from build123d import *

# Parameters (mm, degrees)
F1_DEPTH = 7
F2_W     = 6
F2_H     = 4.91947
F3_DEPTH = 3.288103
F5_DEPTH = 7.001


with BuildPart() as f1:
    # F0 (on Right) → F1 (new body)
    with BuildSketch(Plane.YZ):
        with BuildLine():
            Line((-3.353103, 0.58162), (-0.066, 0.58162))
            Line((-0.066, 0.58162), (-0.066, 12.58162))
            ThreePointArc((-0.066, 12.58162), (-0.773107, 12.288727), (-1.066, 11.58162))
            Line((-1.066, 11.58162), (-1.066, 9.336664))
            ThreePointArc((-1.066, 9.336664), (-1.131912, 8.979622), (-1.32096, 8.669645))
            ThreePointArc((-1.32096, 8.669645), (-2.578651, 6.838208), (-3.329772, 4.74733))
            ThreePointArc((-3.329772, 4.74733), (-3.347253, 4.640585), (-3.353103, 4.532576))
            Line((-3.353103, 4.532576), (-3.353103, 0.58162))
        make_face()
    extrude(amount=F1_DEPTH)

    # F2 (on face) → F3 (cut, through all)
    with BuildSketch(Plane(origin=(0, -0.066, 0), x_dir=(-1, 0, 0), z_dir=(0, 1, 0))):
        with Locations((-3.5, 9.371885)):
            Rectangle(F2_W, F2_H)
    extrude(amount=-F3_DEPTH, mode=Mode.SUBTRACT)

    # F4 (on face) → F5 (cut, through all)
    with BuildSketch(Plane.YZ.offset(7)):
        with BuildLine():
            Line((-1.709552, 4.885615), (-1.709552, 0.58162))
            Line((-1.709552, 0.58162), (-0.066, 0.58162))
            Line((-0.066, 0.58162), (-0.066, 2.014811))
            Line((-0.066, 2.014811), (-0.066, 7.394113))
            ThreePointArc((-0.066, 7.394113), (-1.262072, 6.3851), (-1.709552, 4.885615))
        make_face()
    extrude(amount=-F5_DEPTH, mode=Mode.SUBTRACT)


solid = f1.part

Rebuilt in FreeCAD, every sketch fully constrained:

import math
import FreeCAD as App
import Part
import Sketcher

V = App.Vector
Q = App.Units.Quantity


def add_polygon(sketch, points):
    """Adds a closed chain of lines whose ends are joined by coincident constraints."""
    first, n = sketch.GeometryCount, len(points)
    for a, b in zip(points, points[1:] + points[:1]):
        sketch.addGeometry(Part.LineSegment(App.Vector(*a, 0), App.Vector(*b, 0)), False)
    for i in range(n):
        sketch.addConstraint(Sketcher.Constraint("Coincident", first + i, 2, first + (i + 1) % n, 1))

doc = App.newDocument("Part")
body = doc.addObject("PartDesign::Body", "Body")

# Sketch on YZ plane
sketch1 = body.newObject("Sketcher::SketchObject", "Sketch")
sketch1.AttachmentSupport = (doc.getObject("YZ_Plane"), [""])
sketch1.MapMode = "FlatFace"
sketch1.addGeometry([
    Part.LineSegment(V(-3.35, 0.58, 0), V(-0.07, 0.58, 0)),  # 0
    Part.LineSegment(V(-0.07, 0.58, 0), V(-0.07, 12.58, 0)),  # 1
    Part.ArcOfCircle(Part.Circle(V(-0.07, 11.58, 0), V(0, 0, 1), 1), math.radians(90), math.radians(180)),  # 2
    Part.LineSegment(V(-1.07, 11.58, 0), V(-1.07, 9.34, 0)),  # 3
    Part.ArcOfCircle(Part.Circle(V(-2.07, 9.34, 0), V(0, 0, 1), 1), math.radians(-42), math.radians(0)),  # 4
    Part.ArcOfCircle(Part.Circle(V(5.14, 2.88, 0), V(0, 0, 1), 8.67), math.radians(138), math.radians(168)),  # 5
    Part.ArcOfCircle(Part.Circle(V(-2.35, 4.53, 0), V(0, 0, 1), 1), math.radians(167.6), math.radians(180)),  # 6
    Part.LineSegment(V(-3.35, 4.53, 0), V(-3.35, 0.58, 0)),  # 7
], False)
sketch1.addConstraint([
    Sketcher.Constraint("Coincident", 0, 2, 1, 1),
    Sketcher.Constraint("Coincident", 1, 2, 2, 1),
    Sketcher.Constraint("Tangent", 2, 2, 3, 1),
    Sketcher.Constraint("Tangent", 3, 2, 4, 2),
    Sketcher.Constraint("Tangent", 4, 1, 5, 1),
    Sketcher.Constraint("Coincident", 5, 2, 6, 1),
    Sketcher.Constraint("Coincident", 6, 2, 7, 1),
    Sketcher.Constraint("Coincident", 7, 2, 0, 1),
    Sketcher.Constraint("Horizontal", 0),
    Sketcher.Constraint("Vertical", 1),
    Sketcher.Constraint("Vertical", 3),
    Sketcher.Constraint("Vertical", 7),
    Sketcher.Constraint("Equal", 2, 4),
    Sketcher.Constraint("Vertical", 2, 3, 0, 2),
    Sketcher.Constraint("Radius", 2, Q("0.999999 mm")),
    Sketcher.Constraint("DistanceY", 1, 1, 1, 2, Q("12 mm")),
    Sketcher.Constraint("DistanceX", 2, 3, -1, 1, Q("0.066001 mm")),
    Sketcher.Constraint("Radius", 5, Q("8.672615 mm")),
    Sketcher.Constraint("Radius", 6, Q("1.000055 mm")),
    Sketcher.Constraint("DistanceX", 0, 1, 0, 2, Q("3.287103 mm")),
    Sketcher.Constraint("DistanceY", 3, 2, 3, 1, Q("2.244956 mm")),
    Sketcher.Constraint("DistanceY", 7, 2, 7, 1, Q("3.950956 mm")),
    Sketcher.Constraint("DistanceY", -1, 1, 2, 3, Q("11.581621 mm")),
    Sketcher.Constraint("DistanceY", -1, 1, 5, 3, Q("2.88485 mm")),
    Sketcher.Constraint("DistanceY", -1, 1, 5, 2, Q("4.74733 mm")),
])
pad1 = body.newObject("PartDesign::Pad", "Pad")
pad1.Profile = sketch1
pad1.Length = 7

# Sketch on XZ plane
sketch2 = body.newObject("Sketcher::SketchObject", "Sketch001")
sketch2.AttachmentSupport = (doc.getObject("XZ_Plane"), [""])
sketch2.MapMode = "FlatFace"
sketch2.AttachmentOffset = App.Placement(V(0, 0, 0.066), App.Rotation())
add_polygon(sketch2, [(6.5, 11.8), (6.5, 6.9), (0.5, 6.9), (0.5, 11.8)])  # lines 0-3
sketch2.addConstraint([
    Sketcher.Constraint("Vertical", 0),
    Sketcher.Constraint("Horizontal", 1),
    Sketcher.Constraint("Vertical", 2),
    Sketcher.Constraint("Horizontal", 3),
    Sketcher.Constraint("DistanceX", 1, 2, 1, 1, Q("6 mm")),
    Sketcher.Constraint("DistanceX", -1, 1, 0, 2, Q("6.5 mm")),
    Sketcher.Constraint("DistanceY", 0, 2, 0, 1, Q("4.91947 mm")),
    Sketcher.Constraint("DistanceY", -1, 1, 0, 2, Q("6.91215 mm")),
])
pocket1 = body.newObject("PartDesign::Pocket", "Pocket")
pocket1.Profile = sketch2
pocket1.Type = "ThroughAll"
pocket1.Reversed = True

# Sketch on YZ plane
sketch3 = body.newObject("Sketcher::SketchObject", "Sketch002")
sketch3.AttachmentSupport = (doc.getObject("YZ_Plane"), [""])
sketch3.MapMode = "FlatFace"
sketch3.AttachmentOffset = App.Placement(V(0, 0, 7), App.Rotation())
sketch3.addGeometry([
    Part.LineSegment(V(-1.7, 4.9, 0), V(-1.7, 0.6, 0)),
    Part.LineSegment(V(-1.7, 0.6, 0), V(-0.1, 0.6, 0)),
    Part.LineSegment(V(-0.1, 0.6, 0), V(-0.1, 7.4, 0)),
    Part.ArcOfCircle(Part.Circle(V(1, 4.9, 0), V(0, 0, 1), 2.7), math.radians(114), math.radians(180)),
], False)
sketch3.addConstraint([
    Sketcher.Constraint("Coincident", 0, 2, 1, 1),
    Sketcher.Constraint("Coincident", 1, 2, 2, 1),
    Sketcher.Constraint("Coincident", 2, 2, 3, 1),
    Sketcher.Constraint("Tangent", 3, 2, 0, 1),
    Sketcher.Constraint("Vertical", 0),
    Sketcher.Constraint("Horizontal", 1),
    Sketcher.Constraint("Vertical", 2),
    Sketcher.Constraint("DistanceX", 1, 2, -1, 1, Q("0.066 mm")),
    Sketcher.Constraint("Radius", 3, Q("2.736095 mm")),
    Sketcher.Constraint("DistanceX", 1, 1, 1, 2, Q("1.643552 mm")),
    Sketcher.Constraint("DistanceY", 0, 2, 0, 1, Q("4.303995 mm")),
    Sketcher.Constraint("DistanceY", -1, 1, 0, 2, Q("0.58162 mm")),
])
pocket2 = body.newObject("PartDesign::Pocket", "Pocket001")
pocket2.Profile = sketch3
pocket2.Type = "ThroughAll"

doc.recompute()
